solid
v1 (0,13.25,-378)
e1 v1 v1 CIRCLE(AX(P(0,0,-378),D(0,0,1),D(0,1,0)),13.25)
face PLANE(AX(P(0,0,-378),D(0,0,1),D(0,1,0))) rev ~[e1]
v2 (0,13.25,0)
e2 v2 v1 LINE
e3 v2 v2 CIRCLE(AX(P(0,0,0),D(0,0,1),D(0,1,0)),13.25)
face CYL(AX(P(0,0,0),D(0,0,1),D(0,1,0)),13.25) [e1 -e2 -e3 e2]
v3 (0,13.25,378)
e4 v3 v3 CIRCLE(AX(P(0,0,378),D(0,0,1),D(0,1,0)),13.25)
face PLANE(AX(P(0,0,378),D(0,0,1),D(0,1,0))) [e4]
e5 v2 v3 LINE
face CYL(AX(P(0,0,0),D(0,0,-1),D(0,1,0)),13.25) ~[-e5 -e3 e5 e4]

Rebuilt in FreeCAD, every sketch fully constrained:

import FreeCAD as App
import Part
import Sketcher

V = App.Vector
Q = App.Units.Quantity

doc = App.newDocument("Part")
params = doc.addObject("Spreadsheet::Sheet", "Params")
for row, (alias, value) in enumerate([
    ("sketch1_diameter", "26.5 mm"),
    ("pad1_length", "756 mm"),
], start=1):
    params.set(f"A{row}", alias)
    params.set(f"B{row}", "=" + value)
    params.setAlias(f"B{row}", alias)

body = doc.addObject("PartDesign::Body", "Body")

# Sketch on XY plane
sketch1 = body.newObject("Sketcher::SketchObject", "Sketch")
sketch1.AttachmentSupport = (doc.getObject("XY_Plane"), [""])
sketch1.MapMode = "FlatFace"
sketch1.addGeometry(Part.Circle(V(0, 0, 0), V(0, 0, 1), 13.25), False)
sketch1.addConstraint([
    Sketcher.Constraint("Coincident", 0, 3, -1, 1),
    Sketcher.Constraint("Diameter", 0, Q("26.5 mm")),
])
sketch1.setExpression("Constraints[1]", "Params.sketch1_diameter")
pad1 = body.newObject("PartDesign::Pad", "Pad")
pad1.Profile = sketch1
pad1.setExpression("Length", "Params.pad1_length")
pad1.Midplane = True

doc.recompute()
